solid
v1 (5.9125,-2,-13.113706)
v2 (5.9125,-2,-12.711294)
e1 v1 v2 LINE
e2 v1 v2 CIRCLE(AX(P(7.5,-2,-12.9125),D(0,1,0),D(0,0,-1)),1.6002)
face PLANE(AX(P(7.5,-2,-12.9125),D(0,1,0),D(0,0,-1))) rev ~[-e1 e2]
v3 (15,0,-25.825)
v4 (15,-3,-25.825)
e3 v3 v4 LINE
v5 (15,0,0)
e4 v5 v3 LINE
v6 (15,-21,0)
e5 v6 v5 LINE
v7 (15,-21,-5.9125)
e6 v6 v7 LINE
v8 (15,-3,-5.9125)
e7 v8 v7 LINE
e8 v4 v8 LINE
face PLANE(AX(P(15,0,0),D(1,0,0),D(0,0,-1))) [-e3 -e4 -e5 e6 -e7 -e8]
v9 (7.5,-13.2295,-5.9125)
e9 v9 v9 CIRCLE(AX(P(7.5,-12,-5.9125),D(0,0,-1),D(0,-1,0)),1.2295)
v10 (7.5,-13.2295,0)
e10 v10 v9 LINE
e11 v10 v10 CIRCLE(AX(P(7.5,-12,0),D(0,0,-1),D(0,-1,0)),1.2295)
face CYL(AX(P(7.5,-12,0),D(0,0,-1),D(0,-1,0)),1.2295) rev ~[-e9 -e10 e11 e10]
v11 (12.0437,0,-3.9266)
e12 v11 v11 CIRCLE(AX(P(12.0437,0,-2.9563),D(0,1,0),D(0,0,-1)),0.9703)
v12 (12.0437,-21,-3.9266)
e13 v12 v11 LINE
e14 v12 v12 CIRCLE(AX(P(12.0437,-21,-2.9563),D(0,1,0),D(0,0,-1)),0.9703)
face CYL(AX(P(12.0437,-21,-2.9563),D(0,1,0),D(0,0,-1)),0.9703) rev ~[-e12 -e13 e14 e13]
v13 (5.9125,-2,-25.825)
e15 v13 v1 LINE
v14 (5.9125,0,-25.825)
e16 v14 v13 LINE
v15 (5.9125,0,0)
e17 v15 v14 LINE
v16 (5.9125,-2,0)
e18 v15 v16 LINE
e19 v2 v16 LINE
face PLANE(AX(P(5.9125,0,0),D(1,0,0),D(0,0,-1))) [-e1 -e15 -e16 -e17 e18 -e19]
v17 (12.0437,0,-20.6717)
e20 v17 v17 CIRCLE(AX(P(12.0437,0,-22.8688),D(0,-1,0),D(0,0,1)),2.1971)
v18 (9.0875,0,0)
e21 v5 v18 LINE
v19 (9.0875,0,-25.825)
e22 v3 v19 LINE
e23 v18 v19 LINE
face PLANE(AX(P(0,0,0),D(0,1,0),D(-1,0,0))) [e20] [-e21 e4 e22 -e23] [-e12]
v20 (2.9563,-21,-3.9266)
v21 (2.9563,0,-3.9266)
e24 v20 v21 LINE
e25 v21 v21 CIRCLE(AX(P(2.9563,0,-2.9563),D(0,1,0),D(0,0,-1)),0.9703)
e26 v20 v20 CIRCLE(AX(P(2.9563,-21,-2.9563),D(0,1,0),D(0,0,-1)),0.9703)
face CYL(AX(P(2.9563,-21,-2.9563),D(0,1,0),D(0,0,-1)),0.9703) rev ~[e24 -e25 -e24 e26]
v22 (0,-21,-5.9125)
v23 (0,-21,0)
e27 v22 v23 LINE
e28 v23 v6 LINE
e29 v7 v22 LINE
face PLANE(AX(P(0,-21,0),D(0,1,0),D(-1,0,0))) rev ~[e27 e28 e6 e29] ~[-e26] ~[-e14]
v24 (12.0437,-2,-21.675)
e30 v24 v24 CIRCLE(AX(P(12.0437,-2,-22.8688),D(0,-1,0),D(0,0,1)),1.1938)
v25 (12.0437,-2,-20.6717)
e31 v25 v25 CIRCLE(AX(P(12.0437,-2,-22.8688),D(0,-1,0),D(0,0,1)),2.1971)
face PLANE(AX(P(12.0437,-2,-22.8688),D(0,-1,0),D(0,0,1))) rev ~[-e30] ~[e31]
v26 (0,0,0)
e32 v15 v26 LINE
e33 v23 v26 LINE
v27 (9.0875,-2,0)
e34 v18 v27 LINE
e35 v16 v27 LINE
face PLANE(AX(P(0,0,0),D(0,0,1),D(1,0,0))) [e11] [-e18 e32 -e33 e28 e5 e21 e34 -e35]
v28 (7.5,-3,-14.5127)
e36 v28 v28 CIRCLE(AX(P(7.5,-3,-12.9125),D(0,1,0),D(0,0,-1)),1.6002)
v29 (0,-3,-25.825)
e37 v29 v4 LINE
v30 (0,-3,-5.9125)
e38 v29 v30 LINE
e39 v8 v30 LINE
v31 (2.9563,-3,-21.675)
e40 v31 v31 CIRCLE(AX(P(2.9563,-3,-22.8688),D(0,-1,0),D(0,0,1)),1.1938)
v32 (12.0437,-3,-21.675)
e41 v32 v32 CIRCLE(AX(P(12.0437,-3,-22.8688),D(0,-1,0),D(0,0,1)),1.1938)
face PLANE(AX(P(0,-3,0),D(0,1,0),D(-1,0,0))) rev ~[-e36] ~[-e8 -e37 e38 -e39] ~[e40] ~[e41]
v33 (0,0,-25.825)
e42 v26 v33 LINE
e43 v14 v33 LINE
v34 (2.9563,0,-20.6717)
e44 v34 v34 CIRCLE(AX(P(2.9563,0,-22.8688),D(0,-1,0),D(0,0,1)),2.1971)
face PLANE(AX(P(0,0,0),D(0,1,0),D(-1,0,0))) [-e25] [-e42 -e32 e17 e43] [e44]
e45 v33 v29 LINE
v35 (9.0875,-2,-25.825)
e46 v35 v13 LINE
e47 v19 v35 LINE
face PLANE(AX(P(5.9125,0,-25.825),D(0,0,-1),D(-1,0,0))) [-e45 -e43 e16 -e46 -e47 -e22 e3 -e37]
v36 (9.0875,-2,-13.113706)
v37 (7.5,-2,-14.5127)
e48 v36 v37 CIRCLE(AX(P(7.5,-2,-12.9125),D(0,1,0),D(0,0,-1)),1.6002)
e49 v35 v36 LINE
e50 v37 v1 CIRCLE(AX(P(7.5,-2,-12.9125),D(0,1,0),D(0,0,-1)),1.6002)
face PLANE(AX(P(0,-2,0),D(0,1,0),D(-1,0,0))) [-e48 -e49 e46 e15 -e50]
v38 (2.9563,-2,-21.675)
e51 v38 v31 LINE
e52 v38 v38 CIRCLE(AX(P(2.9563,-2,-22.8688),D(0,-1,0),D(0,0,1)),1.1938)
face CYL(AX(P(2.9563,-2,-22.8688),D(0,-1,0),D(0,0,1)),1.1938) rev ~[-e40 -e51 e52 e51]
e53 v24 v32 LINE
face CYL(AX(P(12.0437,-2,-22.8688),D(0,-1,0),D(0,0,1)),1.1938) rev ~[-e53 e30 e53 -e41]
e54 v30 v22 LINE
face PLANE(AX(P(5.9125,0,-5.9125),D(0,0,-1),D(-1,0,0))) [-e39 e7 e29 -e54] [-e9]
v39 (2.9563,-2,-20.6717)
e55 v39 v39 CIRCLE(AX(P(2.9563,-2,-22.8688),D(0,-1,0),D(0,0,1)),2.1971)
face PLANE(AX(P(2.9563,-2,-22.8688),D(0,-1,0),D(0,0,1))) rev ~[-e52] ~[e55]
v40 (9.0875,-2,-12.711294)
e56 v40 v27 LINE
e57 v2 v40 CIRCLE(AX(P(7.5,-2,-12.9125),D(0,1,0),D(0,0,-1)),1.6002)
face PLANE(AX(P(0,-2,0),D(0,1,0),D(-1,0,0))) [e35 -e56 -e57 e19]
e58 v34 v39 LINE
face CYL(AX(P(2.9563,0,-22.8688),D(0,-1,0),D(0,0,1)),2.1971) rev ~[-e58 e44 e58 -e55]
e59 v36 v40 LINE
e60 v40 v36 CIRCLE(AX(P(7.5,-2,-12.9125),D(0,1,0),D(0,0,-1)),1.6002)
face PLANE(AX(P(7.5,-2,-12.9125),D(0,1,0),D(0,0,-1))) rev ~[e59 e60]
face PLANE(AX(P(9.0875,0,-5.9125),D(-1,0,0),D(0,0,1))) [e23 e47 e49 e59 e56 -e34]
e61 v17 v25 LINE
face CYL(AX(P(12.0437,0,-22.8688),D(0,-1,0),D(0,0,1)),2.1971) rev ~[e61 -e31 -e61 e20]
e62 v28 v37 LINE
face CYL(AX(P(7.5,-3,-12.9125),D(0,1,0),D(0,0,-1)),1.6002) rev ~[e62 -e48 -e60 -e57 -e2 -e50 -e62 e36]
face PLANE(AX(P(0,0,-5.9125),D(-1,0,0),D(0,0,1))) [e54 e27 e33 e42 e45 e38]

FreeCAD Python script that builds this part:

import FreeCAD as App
import Part
import Sketcher

V = App.Vector
Q = App.Units.Quantity

doc = App.newDocument("Part")
params = doc.addObject("Spreadsheet::Sheet", "Params")
for row, (alias, value) in enumerate([
    ("sketch1_width", "15 mm"),
    ("pad1_length", "3 mm"),
    ("sketch2_width", "15 mm"),
    ("pad2_length", "21 mm"),
    ("hole_diameter", "2.3876 mm"),
    ("hole_cbore_diameter", "4.3942 mm"),
    ("hole_cbore_depth", "2 mm"),
    ("pocket1_length", "2 mm"),
    ("hole2_diameter", "1.9406 mm"),
    ("hole3_diameter", "3.2004 mm"),
    ("hole3_depth", "1 mm"),
    ("hole4_diameter", "2.459 mm"),
], start=1):
    params.set(f"A{row}", alias)
    params.set(f"B{row}", "=" + value)
    params.setAlias(f"B{row}", alias)

body = doc.addObject("PartDesign::Body", "Body")

# Sketch on XZ plane
sketch1 = body.newObject("Sketcher::SketchObject", "Sketch")
sketch1.AttachmentSupport = (doc.getObject("XZ_Plane"), [""])
sketch1.MapMode = "FlatFace"
sketch1.addGeometry(Part.LineSegment(V(0, 0, 0), V(15, 0, 0)), False)
sketch1.addGeometry(Part.LineSegment(V(15, 0, 0), V(15, -26, 0)), False)
sketch1.addGeometry(Part.LineSegment(V(15, -26, 0), V(0, -26, 0)), False)
sketch1.addGeometry(Part.LineSegment(V(0, -26, 0), V(0, 0, 0)), False)
sketch1.addConstraint(Sketcher.Constraint("Coincident", 0, 2, 1, 1))
sketch1.addConstraint(Sketcher.Constraint("Coincident", 1, 2, 2, 1))
sketch1.addConstraint(Sketcher.Constraint("Coincident", 2, 2, 3, 1))
sketch1.addConstraint(Sketcher.Constraint("Coincident", 3, 2, 0, 1))
sketch1.addConstraint(Sketcher.Constraint("Horizontal", 0))
sketch1.addConstraint(Sketcher.Constraint("Vertical", 1))
sketch1.addConstraint(Sketcher.Constraint("Horizontal", 2))
sketch1.addConstraint(Sketcher.Constraint("Vertical", 3))
sketch1.addConstraint(Sketcher.Constraint("Coincident", 3, 2, -1, 1))
sketch1.addConstraint(Sketcher.Constraint("DistanceX", 0, 1, 0, 2, Q("15 mm")))
sketch1.addConstraint(Sketcher.Constraint("DistanceY", 1, 2, 1, 1, Q("25.825 mm")))
sketch1.setExpression("Constraints[9]", "Params.sketch1_width")
pad1 = body.newObject("PartDesign::Pad", "Pad")
pad1.Profile = sketch1
pad1.setExpression("Length", "Params.pad1_length")

# Sketch on XZ plane
sketch2 = body.newObject("Sketcher::SketchObject", "Sketch001")
sketch2.AttachmentSupport = (doc.getObject("XZ_Plane"), [""])
sketch2.MapMode = "FlatFace"
sketch2.addGeometry(Part.LineSegment(V(0, -6, 0), V(0, 0, 0)), False)
sketch2.addGeometry(Part.LineSegment(V(0, 0, 0), V(15, 0, 0)), False)
sketch2.addGeometry(Part.LineSegment(V(15, 0, 0), V(15, -6, 0)), False)
sketch2.addGeometry(Part.LineSegment(V(15, -6, 0), V(0, -6, 0)), False)
sketch2.addConstraint(Sketcher.Constraint("Coincident", 0, 2, 1, 1))
sketch2.addConstraint(Sketcher.Constraint("Coincident", 1, 2, 2, 1))
sketch2.addConstraint(Sketcher.Constraint("Coincident", 2, 2, 3, 1))
sketch2.addConstraint(Sketcher.Constraint("Coincident", 3, 2, 0, 1))
sketch2.addConstraint(Sketcher.Constraint("Vertical", 0))
sketch2.addConstraint(Sketcher.Constraint("Horizontal", 1))
sketch2.addConstraint(Sketcher.Constraint("Vertical", 2))
sketch2.addConstraint(Sketcher.Constraint("Horizontal", 3))
sketch2.addConstraint(Sketcher.Constraint("Coincident", 0, 2, -1, 1))
sketch2.addConstraint(Sketcher.Constraint("DistanceX", 1, 1, 1, 2, Q("15 mm")))
sketch2.addConstraint(Sketcher.Constraint("DistanceY", 0, 1, 0, 2, Q("5.9125 mm")))
sketch2.setExpression("Constraints[9]", "Params.sketch2_width")
pad2 = body.newObject("PartDesign::Pad", "Pad001")
pad2.Profile = sketch2
pad2.setExpression("Length", "Params.pad2_length")

# Sketch on XZ plane
sketch3 = body.newObject("Sketcher::SketchObject", "Sketch002")
sketch3.AttachmentSupport = (doc.getObject("XZ_Plane"), [""])
sketch3.MapMode = "FlatFace"
sketch3.addGeometry(Part.Circle(V(3, -22.9, 0), V(0, 0, 1), 1.2), False)
sketch3.addGeometry(Part.Circle(V(12, -22.9, 0), V(0, 0, 1), 1.2), False)
sketch3.addConstraint(Sketcher.Constraint("Equal", 0, 1))
sketch3.addConstraint(Sketcher.Constraint("Horizontal", 0, 3, 1, 3))
sketch3.addConstraint(Sketcher.Constraint("Diameter", 0, Q("2.3876 mm")))
sketch3.addConstraint(Sketcher.Constraint("DistanceX", -1, 1, 0, 3, Q("2.9563 mm")))
sketch3.addConstraint(Sketcher.Constraint("DistanceY", 0, 3, -1, 1, Q("22.8688 mm")))
sketch3.addConstraint(Sketcher.Constraint("DistanceX", -1, 1, 1, 3, Q("12.0437 mm")))
doc.recompute()
hole = body.newObject("PartDesign::Hole", "Hole")
hole.Profile = sketch3
hole.ThreadType = "None"
hole.setExpression("Diameter", "Params.hole_diameter")
hole.DepthType = "ThroughAll"
hole.HoleCutType = "Counterbore"
hole.setExpression("HoleCutDiameter", "Params.hole_cbore_diameter")
hole.setExpression("HoleCutDepth", "Params.hole_cbore_depth")
hole.Reversed = True

# Sketch on XZ plane
sketch4 = body.newObject("Sketcher::SketchObject", "Sketch003")
sketch4.AttachmentSupport = (doc.getObject("XZ_Plane"), [""])
sketch4.MapMode = "FlatFace"
sketch4.addGeometry(Part.LineSegment(V(5.9, 0, 0), V(9.1, 0, 0)), False)
sketch4.addGeometry(Part.LineSegment(V(9.1, 0, 0), V(9.1, -25.8, 0)), False)
sketch4.addGeometry(Part.LineSegment(V(9.1, -25.8, 0), V(5.9, -25.8, 0)), False)
sketch4.addGeometry(Part.LineSegment(V(5.9, -25.8, 0), V(5.9, 0, 0)), False)
sketch4.addConstraint(Sketcher.Constraint("Coincident", 0, 2, 1, 1))
sketch4.addConstraint(Sketcher.Constraint("Coincident", 1, 2, 2, 1))
sketch4.addConstraint(Sketcher.Constraint("Coincident", 2, 2, 3, 1))
sketch4.addConstraint(Sketcher.Constraint("Coincident", 3, 2, 0, 1))
sketch4.addConstraint(Sketcher.Constraint("Horizontal", 0))
sketch4.addConstraint(Sketcher.Constraint("Vertical", 1))
sketch4.addConstraint(Sketcher.Constraint("Horizontal", 2))
sketch4.addConstraint(Sketcher.Constraint("Vertical", 3))
sketch4.addConstraint(Sketcher.Constraint("PointOnObject", 0, 2, -1))
sketch4.addConstraint(Sketcher.Constraint("DistanceX", 0, 1, 0, 2, Q("3.175 mm")))
sketch4.addConstraint(Sketcher.Constraint("DistanceY", 1, 2, 1, 1, Q("25.825 mm")))
sketch4.addConstraint(Sketcher.Constraint("DistanceX", -1, 1, 2, 2, Q("5.9125 mm")))
pocket1 = body.newObject("PartDesign::Pocket", "Pocket")
pocket1.Profile = sketch4
pocket1.setExpression("Length", "Params.pocket1_length")
pocket1.Reversed = True

# Sketch on XZ plane
sketch5 = body.newObject("Sketcher::SketchObject", "Sketch004")
sketch5.AttachmentSupport = (doc.getObject("XZ_Plane"), [""])
sketch5.MapMode = "FlatFace"
sketch5.AttachmentOffset = App.Placement(V(0, 0, 21), App.Rotation())
sketch5.addGeometry(Part.Circle(V(12, -3, 0), V(0, 0, 1), 1), False)
sketch5.addGeometry(Part.Circle(V(3, -3, 0), V(0, 0, 1), 1), False)
sketch5.addConstraint(Sketcher.Constraint("Equal", 0, 1))
sketch5.addConstraint(Sketcher.Constraint("Horizontal", 0, 3, 1, 3))
sketch5.addConstraint(Sketcher.Constraint("Diameter", 0, Q("1.9406 mm")))
sketch5.addConstraint(Sketcher.Constraint("DistanceX", -1, 1, 0, 3, Q("12.0437 mm")))
sketch5.addConstraint(Sketcher.Constraint("DistanceY", 0, 3, -1, 1, Q("2.9563 mm")))
sketch5.addConstraint(Sketcher.Constraint("DistanceX", -1, 1, 1, 3, Q("2.9563 mm")))
doc.recompute()
hole2 = body.newObject("PartDesign::Hole", "Hole001")
hole2.Profile = sketch5
hole2.ThreadType = "None"
hole2.setExpression("Diameter", "Params.hole2_diameter")
hole2.DepthType = "ThroughAll"

# Sketch on XZ plane
sketch6 = body.newObject("Sketcher::SketchObject", "Sketch005")
sketch6.AttachmentSupport = (doc.getObject("XZ_Plane"), [""])
sketch6.MapMode = "FlatFace"
sketch6.AttachmentOffset = App.Placement(V(0, 0, 3), App.Rotation())
sketch6.addGeometry(Part.Circle(V(7.5, -12.9, 0), V(0, 0, 1), 1.6), False)
sketch6.addConstraint(Sketcher.Constraint("Diameter", 0, Q("3.2004 mm")))
sketch6.addConstraint(Sketcher.Constraint("DistanceX", -1, 1, 0, 3, Q("7.5 mm")))
sketch6.addConstraint(Sketcher.Constraint("DistanceY", 0, 3, -1, 1, Q("12.9125 mm")))
doc.recompute()
hole3 = body.newObject("PartDesign::Hole", "Hole002")
hole3.Profile = sketch6
hole3.ThreadType = "None"
hole3.setExpression("Diameter", "Params.hole3_diameter")
hole3.DepthType = "Dimension"
hole3.setExpression("Depth", "Params.hole3_depth")
hole3.DrillPoint = "Flat"

# Sketch on XY plane
sketch7 = body.newObject("Sketcher::SketchObject", "Sketch006")
sketch7.AttachmentSupport = (doc.getObject("XY_Plane"), [""])
sketch7.MapMode = "FlatFace"
sketch7.addGeometry(Part.Circle(V(7.5, -12, 0), V(0, 0, 1), 1.2), False)
sketch7.addConstraint(Sketcher.Constraint("Diameter", 0, Q("2.459 mm")))
sketch7.addConstraint(Sketcher.Constraint("DistanceY", 0, 3, -1, 1, Q("12 mm")))
sketch7.addConstraint(Sketcher.Constraint("DistanceX", -1, 1, 0, 3, Q("7.5 mm")))
doc.recompute()
hole4 = body.newObject("PartDesign::Hole", "Hole003")
hole4.Profile = sketch7
hole4.ThreadType = "None"
hole4.setExpression("Diameter", "Params.hole4_diameter")
hole4.DepthType = "ThroughAll"

doc.recompute()
